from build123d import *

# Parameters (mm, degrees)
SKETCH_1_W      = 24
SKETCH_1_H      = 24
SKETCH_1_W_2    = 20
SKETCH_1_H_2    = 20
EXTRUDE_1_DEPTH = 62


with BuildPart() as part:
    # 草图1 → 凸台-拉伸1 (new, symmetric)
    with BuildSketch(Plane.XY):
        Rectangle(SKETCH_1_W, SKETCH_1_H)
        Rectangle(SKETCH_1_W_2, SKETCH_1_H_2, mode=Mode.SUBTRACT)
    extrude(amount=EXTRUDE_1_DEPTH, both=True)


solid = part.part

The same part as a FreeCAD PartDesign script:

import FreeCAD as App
import Part
import Sketcher
Q = App.Units.Quantity


def add_polygon(sketch, points):
    """Adds a closed chain of lines whose ends are joined by coincident constraints."""
    first, n = sketch.GeometryCount, len(points)
    for a, b in zip(points, points[1:] + points[:1]):
        sketch.addGeometry(Part.LineSegment(App.Vector(*a, 0), App.Vector(*b, 0)), False)
    for i in range(n):
        sketch.addConstraint(Sketcher.Constraint("Coincident", first + i, 2, first + (i + 1) % n, 1))

doc = App.newDocument("Part")
body = doc.addObject("PartDesign::Body", "Body")

# Sketch on XY plane
sketch1 = body.newObject("Sketcher::SketchObject", "Sketch")
sketch1.AttachmentSupport = (doc.getObject("XY_Plane"), [""])
sketch1.MapMode = "FlatFace"
add_polygon(sketch1, [(-12, 12), (-12, -12), (12, -12), (12, 12)])  # lines 0-3
add_polygon(sketch1, [(10, -10), (-10, -10), (-10, 10), (10, 10)])  # lines 4-7
sketch1.addConstraint([
    Sketcher.Constraint("Vertical", 0),
    Sketcher.Constraint("Horizontal", 1),
    Sketcher.Constraint("Vertical", 2),
    Sketcher.Constraint("Horizontal", 3),
    Sketcher.Constraint("Horizontal", 4),
    Sketcher.Constraint("Vertical", 5),
    Sketcher.Constraint("Horizontal", 6),
    Sketcher.Constraint("Vertical", 7),
    Sketcher.Constraint("Symmetric", 0, 2, 2, 2, -1, 1),
    Sketcher.Constraint("Symmetric", 4, 2, 6, 2, -1, 1),
    Sketcher.Constraint("Equal", 3, 0),
    Sketcher.Constraint("Equal", 6, 5),
    Sketcher.Constraint("DistanceX", 1, 1, 1, 2, Q("24 mm")),
    Sketcher.Constraint("DistanceX", 4, 2, 4, 1, Q("20 mm")),
])
pad1 = body.newObject("PartDesign::Pad", "Pad")
pad1.Profile = sketch1
pad1.Length = 124
pad1.Midplane = True

doc.recompute()
